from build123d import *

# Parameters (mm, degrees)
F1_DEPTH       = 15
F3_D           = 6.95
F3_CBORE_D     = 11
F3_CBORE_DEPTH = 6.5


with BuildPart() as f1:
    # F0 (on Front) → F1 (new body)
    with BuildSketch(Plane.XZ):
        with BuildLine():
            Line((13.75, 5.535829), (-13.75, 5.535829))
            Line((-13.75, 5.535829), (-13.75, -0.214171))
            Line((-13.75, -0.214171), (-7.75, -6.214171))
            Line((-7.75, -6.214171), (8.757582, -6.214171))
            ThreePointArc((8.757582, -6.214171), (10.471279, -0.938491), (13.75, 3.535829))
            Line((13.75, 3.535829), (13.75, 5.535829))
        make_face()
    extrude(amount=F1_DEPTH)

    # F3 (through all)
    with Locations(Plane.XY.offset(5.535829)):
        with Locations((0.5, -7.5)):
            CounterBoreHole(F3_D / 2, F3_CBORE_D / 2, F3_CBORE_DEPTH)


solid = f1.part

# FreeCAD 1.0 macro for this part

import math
import FreeCAD as App
import Part
import Sketcher
Q = App.Units.Quantity

doc = App.newDocument("Part")
params = doc.addObject("Spreadsheet::Sheet", "Params")
for row, (alias, value) in enumerate([
    ("sketch1_height", "2 mm"),
    ("sketch1_width", "27.5 mm"),
    ("sketch1_height2", "5.75 mm"),
    ("pad1_length", "15 mm"),
    ("sketch2_diameter", "6.95 mm"),
    ("hole_diameter", "6.95 mm"),
    ("hole_cbore_diameter", "11 mm"),
    ("hole_cbore_depth", "6.5 mm"),
], start=1):
    params.set(f"A{row}", alias)
    params.set(f"B{row}", "=" + value)
    params.setAlias(f"B{row}", alias)

body = doc.addObject("PartDesign::Body", "Body")

sketch1 = body.newObject("Sketcher::SketchObject", "Sketch")
sketch1.AttachmentSupport = (doc.getObject("XZ_Plane"), [""])
sketch1.MapMode = "FlatFace"
sketch1.addGeometry(Part.LineSegment(App.Vector(13.8, 5.5, 0), App.Vector(-13.8, 5.5, 0)), False)
sketch1.addGeometry(Part.LineSegment(App.Vector(-13.8, 5.5, 0), App.Vector(-13.8, -0.2, 0)), False)
sketch1.addGeometry(Part.LineSegment(App.Vector(-13.8, -0.2, 0), App.Vector(-7.8, -6.2, 0)), False)
sketch1.addGeometry(Part.LineSegment(App.Vector(-7.8, -6.2, 0), App.Vector(8.8, -6.2, 0)), False)
sketch1.addGeometry(Part.ArcOfCircle(Part.Circle(App.Vector(26, -8.9, 0), App.Vector(0, 0, 1), 17.5), math.radians(135), math.radians(171)), False)
sketch1.addGeometry(Part.LineSegment(App.Vector(13.8, 3.5, 0), App.Vector(13.8, 5.5, 0)), False)
sketch1.addConstraint(Sketcher.Constraint("Coincident", 0, 2, 1, 1))
sketch1.addConstraint(Sketcher.Constraint("Coincident", 1, 2, 2, 1))
sketch1.addConstraint(Sketcher.Constraint("Coincident", 2, 2, 3, 1))
sketch1.addConstraint(Sketcher.Constraint("Coincident", 3, 2, 4, 2))
sketch1.addConstraint(Sketcher.Constraint("Coincident", 4, 1, 5, 1))
sketch1.addConstraint(Sketcher.Constraint("Coincident", 5, 2, 0, 1))
sketch1.addConstraint(Sketcher.Constraint("Horizontal", 0))
sketch1.addConstraint(Sketcher.Constraint("Vertical", 1))
sketch1.addConstraint(Sketcher.Constraint("Horizontal", 3))
sketch1.addConstraint(Sketcher.Constraint("Vertical", 5))
sketch1.addConstraint(Sketcher.Constraint("DistanceY", 5, 1, 5, 2, 2.0))
sketch1.addConstraint(Sketcher.Constraint("Angle", 2, Q("-45 deg")))
sketch1.addConstraint(Sketcher.Constraint("DistanceX", 0, 2, 0, 1, 27.5))
sketch1.addConstraint(Sketcher.Constraint("DistanceX", 1, 2, 2, 2, 6.0))
sketch1.addConstraint(Sketcher.Constraint("DistanceY", 1, 2, 1, 1, 5.75))
sketch1.addConstraint(Sketcher.Constraint("DistanceX", 0, 2, -1, 1, 13.75))
sketch1.addConstraint(Sketcher.Constraint("Radius", 4, 17.500003))
sketch1.addConstraint(Sketcher.Constraint("DistanceX", 3, 1, 3, 2, 16.507582))
sketch1.addConstraint(Sketcher.Constraint("DistanceY", 4, 3, -1, 1, 8.914442))
sketch1.setExpression("Constraints[10]", "Params.sketch1_height")
sketch1.setExpression("Constraints[12]", "Params.sketch1_width")
sketch1.setExpression("Constraints[14]", "Params.sketch1_height2")
pad1 = body.newObject("PartDesign::Pad", "Pad")
pad1.Profile = sketch1
pad1.setExpression("Length", "Params.pad1_length")

sketch2 = body.newObject("Sketcher::SketchObject", "Sketch001")
sketch2.AttachmentSupport = (doc.getObject("XY_Plane"), [""])
sketch2.MapMode = "FlatFace"
sketch2.AttachmentOffset = App.Placement(App.Vector(0, 0, 5.535829), App.Rotation())
sketch2.addGeometry(Part.Circle(App.Vector(0.5, -7.5, 0), App.Vector(0, 0, 1), 3.5), False)
sketch2.addConstraint(Sketcher.Constraint("Diameter", 0, 6.95))
sketch2.addConstraint(Sketcher.Constraint("DistanceX", -1, 1, 0, 3, 0.5))
sketch2.addConstraint(Sketcher.Constraint("DistanceY", 0, 3, -1, 1, 7.5))
sketch2.setExpression("Constraints[0]", "Params.sketch2_diameter")
doc.recompute()
hole = body.newObject("PartDesign::Hole", "Hole")
hole.Profile = sketch2
hole.ThreadType = "None"
hole.setExpression("Diameter", "Params.hole_diameter")
hole.DepthType = "ThroughAll"
hole.HoleCutType = "Counterbore"
hole.setExpression("HoleCutDiameter", "Params.hole_cbore_diameter")
hole.setExpression("HoleCutDepth", "Params.hole_cbore_depth")

doc.recompute()
